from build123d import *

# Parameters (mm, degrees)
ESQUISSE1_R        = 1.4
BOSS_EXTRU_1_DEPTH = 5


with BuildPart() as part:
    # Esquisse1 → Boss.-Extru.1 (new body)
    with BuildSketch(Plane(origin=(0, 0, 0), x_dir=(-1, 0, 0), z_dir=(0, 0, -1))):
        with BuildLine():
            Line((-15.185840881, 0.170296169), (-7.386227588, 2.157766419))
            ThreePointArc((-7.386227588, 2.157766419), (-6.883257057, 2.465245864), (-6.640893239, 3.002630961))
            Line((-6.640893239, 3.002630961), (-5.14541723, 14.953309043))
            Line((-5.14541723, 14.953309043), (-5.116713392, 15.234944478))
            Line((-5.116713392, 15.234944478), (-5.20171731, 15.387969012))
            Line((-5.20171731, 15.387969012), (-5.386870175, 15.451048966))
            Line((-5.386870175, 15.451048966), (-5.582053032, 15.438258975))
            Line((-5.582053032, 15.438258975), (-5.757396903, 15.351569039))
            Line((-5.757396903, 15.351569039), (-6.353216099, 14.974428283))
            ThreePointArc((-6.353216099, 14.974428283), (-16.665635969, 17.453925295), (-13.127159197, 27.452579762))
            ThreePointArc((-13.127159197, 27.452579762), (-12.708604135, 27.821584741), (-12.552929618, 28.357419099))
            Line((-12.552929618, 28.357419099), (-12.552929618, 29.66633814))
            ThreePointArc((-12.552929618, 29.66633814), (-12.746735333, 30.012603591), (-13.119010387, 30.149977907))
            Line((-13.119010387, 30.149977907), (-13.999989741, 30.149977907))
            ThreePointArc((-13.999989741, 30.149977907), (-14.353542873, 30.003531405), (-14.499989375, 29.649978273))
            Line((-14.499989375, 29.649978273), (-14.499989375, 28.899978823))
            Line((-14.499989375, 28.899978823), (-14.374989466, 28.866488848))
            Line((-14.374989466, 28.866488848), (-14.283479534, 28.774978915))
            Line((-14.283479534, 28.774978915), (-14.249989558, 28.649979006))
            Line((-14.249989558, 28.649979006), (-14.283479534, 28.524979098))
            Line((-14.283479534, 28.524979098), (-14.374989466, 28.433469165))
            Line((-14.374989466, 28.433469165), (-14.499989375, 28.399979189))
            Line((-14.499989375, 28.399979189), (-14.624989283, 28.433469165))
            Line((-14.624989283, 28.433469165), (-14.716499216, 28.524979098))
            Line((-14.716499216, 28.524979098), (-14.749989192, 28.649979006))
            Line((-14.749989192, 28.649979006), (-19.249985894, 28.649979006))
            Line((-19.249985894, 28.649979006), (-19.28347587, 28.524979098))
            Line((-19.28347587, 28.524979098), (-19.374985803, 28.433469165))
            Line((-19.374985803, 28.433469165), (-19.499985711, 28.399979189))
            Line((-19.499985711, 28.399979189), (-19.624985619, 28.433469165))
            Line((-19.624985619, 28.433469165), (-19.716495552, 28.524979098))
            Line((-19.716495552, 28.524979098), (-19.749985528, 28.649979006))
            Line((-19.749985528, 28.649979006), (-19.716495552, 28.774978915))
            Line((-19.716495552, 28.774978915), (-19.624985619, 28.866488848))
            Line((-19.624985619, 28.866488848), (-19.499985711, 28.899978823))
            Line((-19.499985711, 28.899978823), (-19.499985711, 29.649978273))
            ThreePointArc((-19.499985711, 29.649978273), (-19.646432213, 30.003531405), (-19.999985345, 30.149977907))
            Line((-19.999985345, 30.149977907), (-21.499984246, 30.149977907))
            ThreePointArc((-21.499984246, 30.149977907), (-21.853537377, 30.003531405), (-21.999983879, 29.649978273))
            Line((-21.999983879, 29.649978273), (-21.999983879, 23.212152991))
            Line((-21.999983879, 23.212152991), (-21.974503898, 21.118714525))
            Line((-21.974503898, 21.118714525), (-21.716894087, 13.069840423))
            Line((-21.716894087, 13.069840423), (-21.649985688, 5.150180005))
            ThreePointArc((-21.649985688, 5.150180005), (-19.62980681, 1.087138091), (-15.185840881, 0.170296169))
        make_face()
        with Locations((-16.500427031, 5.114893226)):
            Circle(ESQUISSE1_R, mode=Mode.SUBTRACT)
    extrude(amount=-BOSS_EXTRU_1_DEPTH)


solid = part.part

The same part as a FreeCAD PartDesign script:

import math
import FreeCAD as App
import Part
import Sketcher
Q = App.Units.Quantity

doc = App.newDocument("Part")
body = doc.addObject("PartDesign::Body", "Body")

# Sketch on XY plane
sketch1 = doc.addObject("Sketcher::SketchObject", "Sketch")
body.addObject(sketch1)
sketch1.AttachmentSupport = (doc.XY_Plane, [""])
sketch1.MapMode = "FlatFace"
sketch1.addGeometry(Part.LineSegment(App.Vector(15.19, 0.17, 0), App.Vector(7.39, 2.16, 0)), False)
sketch1.addGeometry(Part.ArcOfCircle(Part.Circle(App.Vector(7.63, 3.13, 0), App.Vector(0, 0, 1), 1), math.radians(-173), math.radians(-104)), False)
sketch1.addGeometry(Part.LineSegment(App.Vector(6.64, 3, 0), App.Vector(5.15, 14.95, 0)), False)
sketch1.addGeometry(Part.LineSegment(App.Vector(5.15, 14.95, 0), App.Vector(5.12, 15.23, 0)), False)
sketch1.addGeometry(Part.LineSegment(App.Vector(5.12, 15.23, 0), App.Vector(5.2, 15.39, 0)), False)
sketch1.addGeometry(Part.LineSegment(App.Vector(5.2, 15.39, 0), App.Vector(5.39, 15.45, 0)), False)
sketch1.addGeometry(Part.LineSegment(App.Vector(5.39, 15.45, 0), App.Vector(5.58, 15.44, 0)), False)
sketch1.addGeometry(Part.LineSegment(App.Vector(5.58, 15.44, 0), App.Vector(5.76, 15.35, 0)), False)
sketch1.addGeometry(Part.LineSegment(App.Vector(5.76, 15.35, 0), App.Vector(6.35, 14.97, 0)), False)
sketch1.addGeometry(Part.ArcOfCircle(Part.Circle(App.Vector(10.39, 20.86, 0), App.Vector(0, 0, 1), 7.14), math.radians(-124), math.radians(67)), False)
sketch1.addGeometry(Part.ArcOfCircle(Part.Circle(App.Vector(13.55, 28.36, 0), App.Vector(0, 0, 1), 1), math.radians(180), math.radians(245)), False)
sketch1.addGeometry(Part.LineSegment(App.Vector(12.55, 28.36, 0), App.Vector(12.55, 29.67, 0)), False)
sketch1.addGeometry(Part.ArcOfCircle(Part.Circle(App.Vector(13.12, 29.58, 0), App.Vector(0, 0, 1), 0.57), math.radians(90), math.radians(171)), False)
sketch1.addGeometry(Part.LineSegment(App.Vector(13.12, 30.15, 0), App.Vector(14, 30.15, 0)), False)
sketch1.addGeometry(Part.ArcOfCircle(Part.Circle(App.Vector(14, 29.65, 0), App.Vector(0, 0, 1), 0.5), math.radians(0), math.radians(90)), False)
sketch1.addGeometry(Part.LineSegment(App.Vector(14.5, 29.65, 0), App.Vector(14.5, 28.9, 0)), False)
sketch1.addGeometry(Part.LineSegment(App.Vector(14.5, 28.9, 0), App.Vector(14.37, 28.87, 0)), False)
sketch1.addGeometry(Part.LineSegment(App.Vector(14.37, 28.87, 0), App.Vector(14.28, 28.77, 0)), False)
sketch1.addGeometry(Part.LineSegment(App.Vector(14.28, 28.77, 0), App.Vector(14.25, 28.65, 0)), False)
sketch1.addGeometry(Part.LineSegment(App.Vector(14.25, 28.65, 0), App.Vector(14.28, 28.52, 0)), False)
sketch1.addGeometry(Part.LineSegment(App.Vector(14.28, 28.52, 0), App.Vector(14.37, 28.43, 0)), False)
sketch1.addGeometry(Part.LineSegment(App.Vector(14.37, 28.43, 0), App.Vector(14.5, 28.4, 0)), False)
sketch1.addGeometry(Part.LineSegment(App.Vector(14.5, 28.4, 0), App.Vector(14.62, 28.43, 0)), False)
sketch1.addGeometry(Part.LineSegment(App.Vector(14.62, 28.43, 0), App.Vector(14.72, 28.52, 0)), False)
sketch1.addGeometry(Part.LineSegment(App.Vector(14.72, 28.52, 0), App.Vector(14.75, 28.65, 0)), False)
sketch1.addGeometry(Part.LineSegment(App.Vector(14.75, 28.65, 0), App.Vector(19.25, 28.65, 0)), False)
sketch1.addGeometry(Part.LineSegment(App.Vector(19.25, 28.65, 0), App.Vector(19.28, 28.52, 0)), False)
sketch1.addGeometry(Part.LineSegment(App.Vector(19.28, 28.52, 0), App.Vector(19.37, 28.43, 0)), False)
sketch1.addGeometry(Part.LineSegment(App.Vector(19.37, 28.43, 0), App.Vector(19.5, 28.4, 0)), False)
sketch1.addGeometry(Part.LineSegment(App.Vector(19.5, 28.4, 0), App.Vector(19.62, 28.43, 0)), False)
sketch1.addGeometry(Part.LineSegment(App.Vector(19.62, 28.43, 0), App.Vector(19.72, 28.52, 0)), False)
sketch1.addGeometry(Part.LineSegment(App.Vector(19.72, 28.52, 0), App.Vector(19.75, 28.65, 0)), False)
sketch1.addGeometry(Part.LineSegment(App.Vector(19.75, 28.65, 0), App.Vector(19.72, 28.77, 0)), False)
sketch1.addGeometry(Part.LineSegment(App.Vector(19.72, 28.77, 0), App.Vector(19.62, 28.87, 0)), False)
sketch1.addGeometry(Part.LineSegment(App.Vector(19.62, 28.87, 0), App.Vector(19.5, 28.9, 0)), False)
sketch1.addGeometry(Part.LineSegment(App.Vector(19.5, 28.9, 0), App.Vector(19.5, 29.65, 0)), False)
sketch1.addGeometry(Part.ArcOfCircle(Part.Circle(App.Vector(20, 29.65, 0), App.Vector(0, 0, 1), 0.5), math.radians(90), math.radians(180)), False)
sketch1.addGeometry(Part.LineSegment(App.Vector(20, 30.15, 0), App.Vector(21.5, 30.15, 0)), False)
sketch1.addGeometry(Part.ArcOfCircle(Part.Circle(App.Vector(21.5, 29.65, 0), App.Vector(0, 0, 1), 0.5), math.radians(0), math.radians(90)), False)
sketch1.addGeometry(Part.LineSegment(App.Vector(22, 29.65, 0), App.Vector(22, 23.21, 0)), False)
sketch1.addGeometry(Part.LineSegment(App.Vector(22, 23.21, 0), App.Vector(21.97, 21.12, 0)), False)
sketch1.addGeometry(Part.LineSegment(App.Vector(21.97, 21.12, 0), App.Vector(21.72, 13.07, 0)), False)
sketch1.addGeometry(Part.LineSegment(App.Vector(21.72, 13.07, 0), App.Vector(21.65, 5.15, 0)), False)
sketch1.addGeometry(Part.ArcOfCircle(Part.Circle(App.Vector(16.47, 5.19, 0), App.Vector(0, 0, 1), 5.18), math.radians(-104), math.radians(0)), False)
sketch1.addGeometry(Part.Circle(App.Vector(16.5, 5.11, 0), App.Vector(0, 0, 1), 1.4), False)
sketch1.addConstraint(Sketcher.Constraint("Tangent", 0, 2, 1, 2))
sketch1.addConstraint(Sketcher.Constraint("Tangent", 1, 1, 2, 1))
sketch1.addConstraint(Sketcher.Constraint("Coincident", 2, 2, 3, 1))
sketch1.addConstraint(Sketcher.Constraint("Coincident", 3, 2, 4, 1))
sketch1.addConstraint(Sketcher.Constraint("Coincident", 4, 2, 5, 1))
sketch1.addConstraint(Sketcher.Constraint("Coincident", 5, 2, 6, 1))
sketch1.addConstraint(Sketcher.Constraint("Coincident", 6, 2, 7, 1))
sketch1.addConstraint(Sketcher.Constraint("Coincident", 7, 2, 8, 1))
sketch1.addConstraint(Sketcher.Constraint("Coincident", 8, 2, 9, 1))
sketch1.addConstraint(Sketcher.Constraint("Coincident", 9, 2, 10, 2))
sketch1.addConstraint(Sketcher.Constraint("Tangent", 10, 1, 11, 1))
sketch1.addConstraint(Sketcher.Constraint("Coincident", 11, 2, 12, 2))
sketch1.addConstraint(Sketcher.Constraint("Tangent", 12, 1, 13, 1))
sketch1.addConstraint(Sketcher.Constraint("Tangent", 13, 2, 14, 2))
sketch1.addConstraint(Sketcher.Constraint("Tangent", 14, 1, 15, 1))
sketch1.addConstraint(Sketcher.Constraint("Coincident", 15, 2, 16, 1))
sketch1.addConstraint(Sketcher.Constraint("Coincident", 16, 2, 17, 1))
sketch1.addConstraint(Sketcher.Constraint("Coincident", 17, 2, 18, 1))
sketch1.addConstraint(Sketcher.Constraint("Coincident", 18, 2, 19, 1))
sketch1.addConstraint(Sketcher.Constraint("Coincident", 19, 2, 20, 1))
sketch1.addConstraint(Sketcher.Constraint("Coincident", 20, 2, 21, 1))
sketch1.addConstraint(Sketcher.Constraint("Coincident", 21, 2, 22, 1))
sketch1.addConstraint(Sketcher.Constraint("Coincident", 22, 2, 23, 1))
sketch1.addConstraint(Sketcher.Constraint("Coincident", 23, 2, 24, 1))
sketch1.addConstraint(Sketcher.Constraint("Coincident", 24, 2, 25, 1))
sketch1.addConstraint(Sketcher.Constraint("Coincident", 25, 2, 26, 1))
sketch1.addConstraint(Sketcher.Constraint("Coincident", 26, 2, 27, 1))
sketch1.addConstraint(Sketcher.Constraint("Coincident", 27, 2, 28, 1))
sketch1.addConstraint(Sketcher.Constraint("Coincident", 28, 2, 29, 1))
sketch1.addConstraint(Sketcher.Constraint("Coincident", 29, 2, 30, 1))
sketch1.addConstraint(Sketcher.Constraint("Coincident", 30, 2, 31, 1))
sketch1.addConstraint(Sketcher.Constraint("Coincident", 31, 2, 32, 1))
sketch1.addConstraint(Sketcher.Constraint("Coincident", 32, 2, 33, 1))
sketch1.addConstraint(Sketcher.Constraint("Coincident", 33, 2, 34, 1))
sketch1.addConstraint(Sketcher.Constraint("Coincident", 34, 2, 35, 1))
sketch1.addConstraint(Sketcher.Constraint("Tangent", 35, 2, 36, 2))
sketch1.addConstraint(Sketcher.Constraint("Tangent", 36, 1, 37, 1))
sketch1.addConstraint(Sketcher.Constraint("Tangent", 37, 2, 38, 2))
sketch1.addConstraint(Sketcher.Constraint("Tangent", 38, 1, 39, 1))
sketch1.addConstraint(Sketcher.Constraint("Coincident", 39, 2, 40, 1))
sketch1.addConstraint(Sketcher.Constraint("Coincident", 40, 2, 41, 1))
sketch1.addConstraint(Sketcher.Constraint("Coincident", 41, 2, 42, 1))
sketch1.addConstraint(Sketcher.Constraint("Tangent", 42, 2, 43, 2))
sketch1.addConstraint(Sketcher.Constraint("Tangent", 43, 1, 0, 1))
sketch1.addConstraint(Sketcher.Constraint("Vertical", 11))
sketch1.addConstraint(Sketcher.Constraint("Horizontal", 13))
sketch1.addConstraint(Sketcher.Constraint("Vertical", 15))
sketch1.addConstraint(Sketcher.Constraint("Horizontal", 25))
sketch1.addConstraint(Sketcher.Constraint("Vertical", 35))
sketch1.addConstraint(Sketcher.Constraint("Horizontal", 37))
sketch1.addConstraint(Sketcher.Constraint("Vertical", 39))
sketch1.addConstraint(Sketcher.Constraint("Equal", 14, 36))
sketch1.addConstraint(Sketcher.Constraint("Equal", 36, 38))
sketch1.addConstraint(Sketcher.Constraint("Perpendicular", 16, 19))
sketch1.addConstraint(Sketcher.Constraint("Perpendicular", 17, 20))
sketch1.addConstraint(Sketcher.Constraint("Perpendicular", 18, 21))
sketch1.addConstraint(Sketcher.Constraint("Perpendicular", 19, 22))
sketch1.addConstraint(Sketcher.Constraint("Perpendicular", 20, 23))
sketch1.addConstraint(Sketcher.Constraint("Perpendicular", 21, 24))
sketch1.addConstraint(Sketcher.Constraint("Perpendicular", 22, 26))
sketch1.addConstraint(Sketcher.Constraint("Perpendicular", 23, 27))
sketch1.addConstraint(Sketcher.Constraint("Perpendicular", 24, 28))
sketch1.addConstraint(Sketcher.Constraint("Perpendicular", 26, 29))
sketch1.addConstraint(Sketcher.Constraint("Perpendicular", 27, 30))
sketch1.addConstraint(Sketcher.Constraint("Perpendicular", 28, 31))
sketch1.addConstraint(Sketcher.Constraint("Perpendicular", 29, 32))
sketch1.addConstraint(Sketcher.Constraint("Perpendicular", 30, 33))
sketch1.addConstraint(Sketcher.Constraint("Perpendicular", 31, 34))
sketch1.addConstraint(Sketcher.Constraint("Horizontal", 14, 3, 36, 3))
sketch1.addConstraint(Sketcher.Constraint("Horizontal", 20, 2, 22, 2))
sketch1.addConstraint(Sketcher.Constraint("Horizontal", 19, 2, 23, 2))
sketch1.addConstraint(Sketcher.Constraint("Horizontal", 18, 2, 24, 2))
sketch1.addConstraint(Sketcher.Constraint("Horizontal", 23, 2, 26, 2))
sketch1.addConstraint(Sketcher.Constraint("Horizontal", 22, 2, 27, 2))
sketch1.addConstraint(Sketcher.Constraint("Horizontal", 21, 2, 28, 2))
sketch1.addConstraint(Sketcher.Constraint("Horizontal", 27, 2, 29, 2))
sketch1.addConstraint(Sketcher.Constraint("Horizontal", 26, 2, 30, 2))
sketch1.addConstraint(Sketcher.Constraint("Horizontal", 25, 2, 31, 2))
sketch1.addConstraint(Sketcher.Constraint("Horizontal", 17, 2, 32, 2))
sketch1.addConstraint(Sketcher.Constraint("Horizontal", 16, 2, 33, 2))
sketch1.addConstraint(Sketcher.Constraint("Horizontal", 15, 2, 34, 2))
sketch1.addConstraint(Sketcher.Constraint("Vertical", 17, 2, 19, 2))
sketch1.addConstraint(Sketcher.Constraint("Vertical", 16, 2, 20, 2))
sketch1.addConstraint(Sketcher.Constraint("Vertical", 15, 2, 21, 2))
sketch1.addConstraint(Sketcher.Constraint("Vertical", 30, 2, 32, 2))
sketch1.addConstraint(Sketcher.Constraint("Vertical", 29, 2, 33, 2))
sketch1.addConstraint(Sketcher.Constraint("Equal", 5, 6))
sketch1.addConstraint(Sketcher.Constraint("Equal", 6, 7))
sketch1.addConstraint(Sketcher.Constraint("Equal", 16, 18))
sketch1.addConstraint(Sketcher.Constraint("Radius", 1, Q("0.999999 mm")))
sketch1.addConstraint(Sketcher.Constraint("Diameter", 44, Q("2.8 mm")))
sketch1.addConstraint(Sketcher.Constraint("Radius", 14, Q("0.5 mm")))
sketch1.addConstraint(Sketcher.Constraint("DistanceX", 37, 1, 37, 2, Q("1.499999 mm")))
sketch1.addConstraint(Sketcher.Constraint("DistanceY", 18, 2, 14, 1, Q("0.999999 mm")))
sketch1.addConstraint(Sketcher.Constraint("DistanceY", 15, 2, 15, 1, Q("0.749999 mm")))
sketch1.addConstraint(Sketcher.Constraint("Radius", 9, Q("7.137831 mm")))
sketch1.addConstraint(Sketcher.Constraint("DistanceY", 19, 2, 17, 2, Q("0.25 mm")))
sketch1.addConstraint(Sketcher.Constraint("Radius", 10, Q("1.000013 mm")))
sketch1.addConstraint(Sketcher.Constraint("Radius", 12, Q("0.573107 mm")))
sketch1.addConstraint(Sketcher.Constraint("Radius", 43, Q("5.184213 mm")))
sketch1.addConstraint(Sketcher.Constraint("DistanceY", 43, 3, 14, 3, Q("24.456002 mm")))
sketch1.addConstraint(Sketcher.Constraint("Distance", 6, Q("0.195601 mm")))
sketch1.addConstraint(Sketcher.Constraint("DistanceX", 13, 1, 13, 2, Q("0.880979 mm")))
sketch1.addConstraint(Sketcher.Constraint("DistanceY", 11, 1, 11, 2, Q("1.308919 mm")))
sketch1.addConstraint(Sketcher.Constraint("DistanceY", -1, 1, 1, 3, Q("3.1268 mm")))
sketch1.addConstraint(Sketcher.Constraint("DistanceX", -1, 1, 23, 2, Q("14.716499 mm")))
sketch1.addConstraint(Sketcher.Constraint("DistanceX", 0, 2, 44, 3, Q("9.114199 mm")))
sketch1.addConstraint(Sketcher.Constraint("DistanceX", 2, 2, 4, 2, Q("0.0563 mm")))
sketch1.addConstraint(Sketcher.Constraint("DistanceY", 7, 2, 4, 2, Q("0.0364 mm")))
sketch1.addConstraint(Sketcher.Constraint("DistanceX", 2, 2, 8, 2, Q("1.207799 mm")))
sketch1.addConstraint(Sketcher.Constraint("DistanceY", 9, 2, 14, 3, Q("2.197399 mm")))
sketch1.addConstraint(Sketcher.Constraint("Distance", 0, Q("8.048851 mm")))
sketch1.addConstraint(Sketcher.Constraint("Distance", 4, Q("0.175049 mm")))
sketch1.addConstraint(Sketcher.Constraint("Distance", 8, Q("0.705149 mm")))
sketch1.addConstraint(Sketcher.Constraint("Distance", 16, Q("0.129408 mm")))
sketch1.addConstraint(Sketcher.Constraint("DistanceX", 25, 1, 25, 2, Q("4.499997 mm")))
sketch1.addConstraint(Sketcher.Constraint("DistanceY", 39, 2, 39, 1, Q("6.437825 mm")))
sketch1.addConstraint(Sketcher.Constraint("DistanceY", -1, 1, 9, 3, Q("20.859361 mm")))
sketch1.addConstraint(Sketcher.Constraint("DistanceY", -1, 1, 10, 3, Q("28.357419 mm")))
sketch1.addConstraint(Sketcher.Constraint("DistanceY", -1, 1, 12, 3, Q("29.576871 mm")))
sketch1.addConstraint(Sketcher.Constraint("DistanceY", -1, 1, 1, 1, Q("3.002631 mm")))
sketch1.addConstraint(Sketcher.Constraint("DistanceY", -1, 1, 2, 2, Q("14.953309 mm")))
sketch1.addConstraint(Sketcher.Constraint("DistanceY", -1, 1, 4, 2, Q("15.387969 mm")))
sketch1.addConstraint(Sketcher.Constraint("DistanceX", -1, 1, 5, 2, Q("5.38687 mm")))
sketch1.addConstraint(Sketcher.Constraint("DistanceY", -1, 1, 5, 2, Q("15.451049 mm")))
sketch1.addConstraint(Sketcher.Constraint("DistanceY", -1, 1, 41, 2, Q("13.06984 mm")))
sketch1.addConstraint(Sketcher.Constraint("DistanceY", -1, 1, 42, 2, Q("5.15018 mm")))
sketch1.addConstraint(Sketcher.Constraint("DistanceX", 3, 2, 1, 1, Q("1.52418 mm")))
sketch1.addConstraint(Sketcher.Constraint("DistanceX", 40, 2, 39, 2, Q("0.02548 mm")))
sketch1.addConstraint(Sketcher.Constraint("DistanceY", 40, 2, 39, 2, Q("2.093438 mm")))
sketch1.addConstraint(Sketcher.Constraint("DistanceY", -1, 1, 44, 3, Q("5.114893 mm")))
pad1 = doc.addObject("PartDesign::Pad", "Pad")
body.addObject(pad1)
pad1.Profile = sketch1
pad1.Length = 5

doc.recompute()
